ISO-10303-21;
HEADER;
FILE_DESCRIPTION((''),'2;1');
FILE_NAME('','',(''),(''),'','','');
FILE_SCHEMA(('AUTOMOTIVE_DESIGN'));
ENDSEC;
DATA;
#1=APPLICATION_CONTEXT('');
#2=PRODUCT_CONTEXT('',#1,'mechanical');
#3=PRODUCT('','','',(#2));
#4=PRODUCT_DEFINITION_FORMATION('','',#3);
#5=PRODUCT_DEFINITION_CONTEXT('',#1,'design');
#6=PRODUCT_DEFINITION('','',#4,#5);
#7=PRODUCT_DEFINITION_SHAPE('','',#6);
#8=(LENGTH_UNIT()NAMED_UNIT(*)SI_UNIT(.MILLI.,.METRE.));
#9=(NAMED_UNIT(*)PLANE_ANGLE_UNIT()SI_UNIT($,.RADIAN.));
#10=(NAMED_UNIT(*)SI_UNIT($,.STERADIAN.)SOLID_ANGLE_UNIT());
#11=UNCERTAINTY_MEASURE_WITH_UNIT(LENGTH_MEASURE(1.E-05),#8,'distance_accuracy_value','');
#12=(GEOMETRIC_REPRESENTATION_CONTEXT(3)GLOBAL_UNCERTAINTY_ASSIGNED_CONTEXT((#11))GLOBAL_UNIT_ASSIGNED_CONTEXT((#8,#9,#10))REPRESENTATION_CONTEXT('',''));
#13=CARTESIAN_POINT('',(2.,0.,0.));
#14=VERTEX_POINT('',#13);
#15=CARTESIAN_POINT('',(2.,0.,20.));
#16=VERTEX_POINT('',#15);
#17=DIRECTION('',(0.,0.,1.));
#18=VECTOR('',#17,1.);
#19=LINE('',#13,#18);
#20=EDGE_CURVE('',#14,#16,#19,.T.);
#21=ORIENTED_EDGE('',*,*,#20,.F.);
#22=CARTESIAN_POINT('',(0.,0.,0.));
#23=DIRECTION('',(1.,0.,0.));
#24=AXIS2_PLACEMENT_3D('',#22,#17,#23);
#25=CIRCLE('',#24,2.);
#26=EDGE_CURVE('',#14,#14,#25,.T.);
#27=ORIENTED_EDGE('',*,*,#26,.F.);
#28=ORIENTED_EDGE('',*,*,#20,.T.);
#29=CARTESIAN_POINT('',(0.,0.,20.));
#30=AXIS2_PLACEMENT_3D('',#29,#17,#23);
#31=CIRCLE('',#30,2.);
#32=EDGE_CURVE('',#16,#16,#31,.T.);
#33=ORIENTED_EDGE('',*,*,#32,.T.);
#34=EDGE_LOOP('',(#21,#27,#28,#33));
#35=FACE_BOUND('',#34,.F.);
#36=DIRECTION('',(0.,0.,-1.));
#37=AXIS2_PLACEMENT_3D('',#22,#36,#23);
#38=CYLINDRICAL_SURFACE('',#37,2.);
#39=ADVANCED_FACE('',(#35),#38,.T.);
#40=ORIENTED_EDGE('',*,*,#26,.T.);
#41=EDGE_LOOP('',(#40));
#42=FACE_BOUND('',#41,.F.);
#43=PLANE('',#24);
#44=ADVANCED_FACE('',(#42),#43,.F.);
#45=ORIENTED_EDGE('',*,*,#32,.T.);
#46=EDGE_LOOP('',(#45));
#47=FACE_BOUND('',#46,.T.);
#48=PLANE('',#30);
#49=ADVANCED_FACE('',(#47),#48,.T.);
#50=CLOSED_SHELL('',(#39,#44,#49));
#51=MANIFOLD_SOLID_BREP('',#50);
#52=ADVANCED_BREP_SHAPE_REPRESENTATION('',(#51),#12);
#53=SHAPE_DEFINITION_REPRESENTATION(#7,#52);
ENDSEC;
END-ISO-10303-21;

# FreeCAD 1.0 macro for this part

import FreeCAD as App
import Part
import Sketcher

V = App.Vector

doc = App.newDocument("Part")
body = doc.addObject("PartDesign::Body", "Body")

sketch1 = body.newObject("Sketcher::SketchObject", "Sketch")
sketch1.AttachmentSupport = (doc.getObject("XY_Plane"), [""])
sketch1.MapMode = "FlatFace"
sketch1.addGeometry(Part.Circle(V(0, 0, 0), V(0, 0, 1), 2), False)
sketch1.addConstraint(Sketcher.Constraint("Coincident", 0, 3, -1, 1))
sketch1.addConstraint(Sketcher.Constraint("Diameter", 0, 4.0))
pad1 = body.newObject("PartDesign::Pad", "Pad")
pad1.Profile = sketch1
pad1.Length = 20

doc.recompute()
